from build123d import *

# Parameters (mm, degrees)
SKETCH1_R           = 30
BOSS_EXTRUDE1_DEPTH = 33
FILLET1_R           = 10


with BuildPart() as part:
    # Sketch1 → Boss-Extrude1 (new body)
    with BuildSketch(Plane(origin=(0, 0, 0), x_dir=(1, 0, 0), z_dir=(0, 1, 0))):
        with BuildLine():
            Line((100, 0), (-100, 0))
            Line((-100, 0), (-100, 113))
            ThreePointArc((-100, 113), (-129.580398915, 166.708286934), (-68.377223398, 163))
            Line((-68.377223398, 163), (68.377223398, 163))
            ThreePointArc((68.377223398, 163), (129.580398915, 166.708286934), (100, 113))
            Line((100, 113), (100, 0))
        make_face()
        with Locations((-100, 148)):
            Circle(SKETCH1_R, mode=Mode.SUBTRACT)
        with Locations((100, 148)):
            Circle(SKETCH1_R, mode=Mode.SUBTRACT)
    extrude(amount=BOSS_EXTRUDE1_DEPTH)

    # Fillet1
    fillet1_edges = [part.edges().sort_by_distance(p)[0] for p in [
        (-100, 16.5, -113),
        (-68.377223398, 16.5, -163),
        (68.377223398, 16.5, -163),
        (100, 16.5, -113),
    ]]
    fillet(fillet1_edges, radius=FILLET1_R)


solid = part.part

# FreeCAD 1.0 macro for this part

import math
import FreeCAD as App
import Part
import Sketcher

V = App.Vector
Q = App.Units.Quantity


def edges_at(feature, points):
    """Names of the edges that pass closest to the given points."""
    edges = feature.Shape.Edges
    near = lambda p: min(range(len(edges)), key=lambda i: edges[i].distToShape(Part.Vertex(*p))[0])
    return sorted({f"Edge{near(p) + 1}" for p in points})

doc = App.newDocument("Part")
params = doc.addObject("Spreadsheet::Sheet", "Params")
for row, (alias, value) in enumerate([
    ("sketch1_diameter", "60 mm"),
    ("sketch1_radius", "35 mm"),
    ("sketch1_width", "200 mm"),
    ("sketch1_height", "113 mm"),
    ("pad1_length", "33 mm"),
    ("fillet_radius", "10 mm"),
], start=1):
    params.set(f"A{row}", alias)
    params.set(f"B{row}", "=" + value)
    params.setAlias(f"B{row}", alias)

body = doc.addObject("PartDesign::Body", "Body")

sketch1 = body.newObject("Sketcher::SketchObject", "Sketch")
sketch1.AttachmentSupport = (doc.getObject("XZ_Plane"), [""])
sketch1.MapMode = "FlatFace"
sketch1.addGeometry([
    Part.LineSegment(V(-100, 0, 0), V(100, 0, 0)),
    Part.LineSegment(V(100, 0, 0), V(100, -113, 0)),
    Part.ArcOfCircle(Part.Circle(V(100, -148, 0), V(0, 0, 1), 35), math.radians(-155), math.radians(90)),
    Part.LineSegment(V(68, -163, 0), V(-68, -163, 0)),
    Part.ArcOfCircle(Part.Circle(V(-100, -148, 0), V(0, 0, 1), 35), math.radians(90), math.radians(335)),
    Part.LineSegment(V(-100, -113, 0), V(-100, 0, 0)),
    Part.Circle(V(100, -148, 0), V(0, 0, 1), 30),
    Part.Circle(V(-100, -148, 0), V(0, 0, 1), 30),
], False)
sketch1.addConstraint([
    Sketcher.Constraint("Coincident", 0, 2, 1, 1),
    Sketcher.Constraint("Coincident", 1, 2, 2, 2),
    Sketcher.Constraint("Coincident", 2, 1, 3, 1),
    Sketcher.Constraint("Coincident", 3, 2, 4, 2),
    Sketcher.Constraint("Coincident", 4, 1, 5, 1),
    Sketcher.Constraint("Coincident", 5, 2, 0, 1),
    Sketcher.Constraint("Horizontal", 0),
    Sketcher.Constraint("Vertical", 1),
    Sketcher.Constraint("Horizontal", 3),
    Sketcher.Constraint("Vertical", 5),
    Sketcher.Constraint("Coincident", 6, 3, 2, 3),
    Sketcher.Constraint("Coincident", 7, 3, 4, 3),
    Sketcher.Constraint("Equal", 2, 4),
    Sketcher.Constraint("Equal", 6, 7),
    Sketcher.Constraint("Symmetric", 0, 2, 5, 2, -1, 1),
    Sketcher.Constraint("Symmetric", 2, 3, 4, 3, -2),
    Sketcher.Constraint("Vertical", 6, 3, 0, 2),
    Sketcher.Constraint("Diameter", 6, Q("60 mm")),
    Sketcher.Constraint("Radius", 2, Q("35 mm")),
    Sketcher.Constraint("DistanceX", 0, 1, 0, 2, Q("200 mm")),
    Sketcher.Constraint("DistanceY", 1, 2, 1, 1, Q("113 mm")),
    Sketcher.Constraint("DistanceY", 2, 1, -1, 1, Q("163 mm")),
])
sketch1.setExpression("Constraints[17]", "Params.sketch1_diameter")
sketch1.setExpression("Constraints[18]", "Params.sketch1_radius")
sketch1.setExpression("Constraints[19]", "Params.sketch1_width")
sketch1.setExpression("Constraints[20]", "Params.sketch1_height")
pad1 = body.newObject("PartDesign::Pad", "Pad")
pad1.Profile = sketch1
pad1.setExpression("Length", "Params.pad1_length")
pad1.Reversed = True
doc.recompute()

fillet = body.newObject("PartDesign::Fillet", "Fillet")
fillet.Base = (pad1, edges_at(pad1, [
    (-100, 16.5, -113),
    (-68.377, 16.5, -163),
    (68.377, 16.5, -163),
    (100, 16.5, -113),
]))
fillet.setExpression("Radius", "Params.fillet_radius")

doc.recompute()
